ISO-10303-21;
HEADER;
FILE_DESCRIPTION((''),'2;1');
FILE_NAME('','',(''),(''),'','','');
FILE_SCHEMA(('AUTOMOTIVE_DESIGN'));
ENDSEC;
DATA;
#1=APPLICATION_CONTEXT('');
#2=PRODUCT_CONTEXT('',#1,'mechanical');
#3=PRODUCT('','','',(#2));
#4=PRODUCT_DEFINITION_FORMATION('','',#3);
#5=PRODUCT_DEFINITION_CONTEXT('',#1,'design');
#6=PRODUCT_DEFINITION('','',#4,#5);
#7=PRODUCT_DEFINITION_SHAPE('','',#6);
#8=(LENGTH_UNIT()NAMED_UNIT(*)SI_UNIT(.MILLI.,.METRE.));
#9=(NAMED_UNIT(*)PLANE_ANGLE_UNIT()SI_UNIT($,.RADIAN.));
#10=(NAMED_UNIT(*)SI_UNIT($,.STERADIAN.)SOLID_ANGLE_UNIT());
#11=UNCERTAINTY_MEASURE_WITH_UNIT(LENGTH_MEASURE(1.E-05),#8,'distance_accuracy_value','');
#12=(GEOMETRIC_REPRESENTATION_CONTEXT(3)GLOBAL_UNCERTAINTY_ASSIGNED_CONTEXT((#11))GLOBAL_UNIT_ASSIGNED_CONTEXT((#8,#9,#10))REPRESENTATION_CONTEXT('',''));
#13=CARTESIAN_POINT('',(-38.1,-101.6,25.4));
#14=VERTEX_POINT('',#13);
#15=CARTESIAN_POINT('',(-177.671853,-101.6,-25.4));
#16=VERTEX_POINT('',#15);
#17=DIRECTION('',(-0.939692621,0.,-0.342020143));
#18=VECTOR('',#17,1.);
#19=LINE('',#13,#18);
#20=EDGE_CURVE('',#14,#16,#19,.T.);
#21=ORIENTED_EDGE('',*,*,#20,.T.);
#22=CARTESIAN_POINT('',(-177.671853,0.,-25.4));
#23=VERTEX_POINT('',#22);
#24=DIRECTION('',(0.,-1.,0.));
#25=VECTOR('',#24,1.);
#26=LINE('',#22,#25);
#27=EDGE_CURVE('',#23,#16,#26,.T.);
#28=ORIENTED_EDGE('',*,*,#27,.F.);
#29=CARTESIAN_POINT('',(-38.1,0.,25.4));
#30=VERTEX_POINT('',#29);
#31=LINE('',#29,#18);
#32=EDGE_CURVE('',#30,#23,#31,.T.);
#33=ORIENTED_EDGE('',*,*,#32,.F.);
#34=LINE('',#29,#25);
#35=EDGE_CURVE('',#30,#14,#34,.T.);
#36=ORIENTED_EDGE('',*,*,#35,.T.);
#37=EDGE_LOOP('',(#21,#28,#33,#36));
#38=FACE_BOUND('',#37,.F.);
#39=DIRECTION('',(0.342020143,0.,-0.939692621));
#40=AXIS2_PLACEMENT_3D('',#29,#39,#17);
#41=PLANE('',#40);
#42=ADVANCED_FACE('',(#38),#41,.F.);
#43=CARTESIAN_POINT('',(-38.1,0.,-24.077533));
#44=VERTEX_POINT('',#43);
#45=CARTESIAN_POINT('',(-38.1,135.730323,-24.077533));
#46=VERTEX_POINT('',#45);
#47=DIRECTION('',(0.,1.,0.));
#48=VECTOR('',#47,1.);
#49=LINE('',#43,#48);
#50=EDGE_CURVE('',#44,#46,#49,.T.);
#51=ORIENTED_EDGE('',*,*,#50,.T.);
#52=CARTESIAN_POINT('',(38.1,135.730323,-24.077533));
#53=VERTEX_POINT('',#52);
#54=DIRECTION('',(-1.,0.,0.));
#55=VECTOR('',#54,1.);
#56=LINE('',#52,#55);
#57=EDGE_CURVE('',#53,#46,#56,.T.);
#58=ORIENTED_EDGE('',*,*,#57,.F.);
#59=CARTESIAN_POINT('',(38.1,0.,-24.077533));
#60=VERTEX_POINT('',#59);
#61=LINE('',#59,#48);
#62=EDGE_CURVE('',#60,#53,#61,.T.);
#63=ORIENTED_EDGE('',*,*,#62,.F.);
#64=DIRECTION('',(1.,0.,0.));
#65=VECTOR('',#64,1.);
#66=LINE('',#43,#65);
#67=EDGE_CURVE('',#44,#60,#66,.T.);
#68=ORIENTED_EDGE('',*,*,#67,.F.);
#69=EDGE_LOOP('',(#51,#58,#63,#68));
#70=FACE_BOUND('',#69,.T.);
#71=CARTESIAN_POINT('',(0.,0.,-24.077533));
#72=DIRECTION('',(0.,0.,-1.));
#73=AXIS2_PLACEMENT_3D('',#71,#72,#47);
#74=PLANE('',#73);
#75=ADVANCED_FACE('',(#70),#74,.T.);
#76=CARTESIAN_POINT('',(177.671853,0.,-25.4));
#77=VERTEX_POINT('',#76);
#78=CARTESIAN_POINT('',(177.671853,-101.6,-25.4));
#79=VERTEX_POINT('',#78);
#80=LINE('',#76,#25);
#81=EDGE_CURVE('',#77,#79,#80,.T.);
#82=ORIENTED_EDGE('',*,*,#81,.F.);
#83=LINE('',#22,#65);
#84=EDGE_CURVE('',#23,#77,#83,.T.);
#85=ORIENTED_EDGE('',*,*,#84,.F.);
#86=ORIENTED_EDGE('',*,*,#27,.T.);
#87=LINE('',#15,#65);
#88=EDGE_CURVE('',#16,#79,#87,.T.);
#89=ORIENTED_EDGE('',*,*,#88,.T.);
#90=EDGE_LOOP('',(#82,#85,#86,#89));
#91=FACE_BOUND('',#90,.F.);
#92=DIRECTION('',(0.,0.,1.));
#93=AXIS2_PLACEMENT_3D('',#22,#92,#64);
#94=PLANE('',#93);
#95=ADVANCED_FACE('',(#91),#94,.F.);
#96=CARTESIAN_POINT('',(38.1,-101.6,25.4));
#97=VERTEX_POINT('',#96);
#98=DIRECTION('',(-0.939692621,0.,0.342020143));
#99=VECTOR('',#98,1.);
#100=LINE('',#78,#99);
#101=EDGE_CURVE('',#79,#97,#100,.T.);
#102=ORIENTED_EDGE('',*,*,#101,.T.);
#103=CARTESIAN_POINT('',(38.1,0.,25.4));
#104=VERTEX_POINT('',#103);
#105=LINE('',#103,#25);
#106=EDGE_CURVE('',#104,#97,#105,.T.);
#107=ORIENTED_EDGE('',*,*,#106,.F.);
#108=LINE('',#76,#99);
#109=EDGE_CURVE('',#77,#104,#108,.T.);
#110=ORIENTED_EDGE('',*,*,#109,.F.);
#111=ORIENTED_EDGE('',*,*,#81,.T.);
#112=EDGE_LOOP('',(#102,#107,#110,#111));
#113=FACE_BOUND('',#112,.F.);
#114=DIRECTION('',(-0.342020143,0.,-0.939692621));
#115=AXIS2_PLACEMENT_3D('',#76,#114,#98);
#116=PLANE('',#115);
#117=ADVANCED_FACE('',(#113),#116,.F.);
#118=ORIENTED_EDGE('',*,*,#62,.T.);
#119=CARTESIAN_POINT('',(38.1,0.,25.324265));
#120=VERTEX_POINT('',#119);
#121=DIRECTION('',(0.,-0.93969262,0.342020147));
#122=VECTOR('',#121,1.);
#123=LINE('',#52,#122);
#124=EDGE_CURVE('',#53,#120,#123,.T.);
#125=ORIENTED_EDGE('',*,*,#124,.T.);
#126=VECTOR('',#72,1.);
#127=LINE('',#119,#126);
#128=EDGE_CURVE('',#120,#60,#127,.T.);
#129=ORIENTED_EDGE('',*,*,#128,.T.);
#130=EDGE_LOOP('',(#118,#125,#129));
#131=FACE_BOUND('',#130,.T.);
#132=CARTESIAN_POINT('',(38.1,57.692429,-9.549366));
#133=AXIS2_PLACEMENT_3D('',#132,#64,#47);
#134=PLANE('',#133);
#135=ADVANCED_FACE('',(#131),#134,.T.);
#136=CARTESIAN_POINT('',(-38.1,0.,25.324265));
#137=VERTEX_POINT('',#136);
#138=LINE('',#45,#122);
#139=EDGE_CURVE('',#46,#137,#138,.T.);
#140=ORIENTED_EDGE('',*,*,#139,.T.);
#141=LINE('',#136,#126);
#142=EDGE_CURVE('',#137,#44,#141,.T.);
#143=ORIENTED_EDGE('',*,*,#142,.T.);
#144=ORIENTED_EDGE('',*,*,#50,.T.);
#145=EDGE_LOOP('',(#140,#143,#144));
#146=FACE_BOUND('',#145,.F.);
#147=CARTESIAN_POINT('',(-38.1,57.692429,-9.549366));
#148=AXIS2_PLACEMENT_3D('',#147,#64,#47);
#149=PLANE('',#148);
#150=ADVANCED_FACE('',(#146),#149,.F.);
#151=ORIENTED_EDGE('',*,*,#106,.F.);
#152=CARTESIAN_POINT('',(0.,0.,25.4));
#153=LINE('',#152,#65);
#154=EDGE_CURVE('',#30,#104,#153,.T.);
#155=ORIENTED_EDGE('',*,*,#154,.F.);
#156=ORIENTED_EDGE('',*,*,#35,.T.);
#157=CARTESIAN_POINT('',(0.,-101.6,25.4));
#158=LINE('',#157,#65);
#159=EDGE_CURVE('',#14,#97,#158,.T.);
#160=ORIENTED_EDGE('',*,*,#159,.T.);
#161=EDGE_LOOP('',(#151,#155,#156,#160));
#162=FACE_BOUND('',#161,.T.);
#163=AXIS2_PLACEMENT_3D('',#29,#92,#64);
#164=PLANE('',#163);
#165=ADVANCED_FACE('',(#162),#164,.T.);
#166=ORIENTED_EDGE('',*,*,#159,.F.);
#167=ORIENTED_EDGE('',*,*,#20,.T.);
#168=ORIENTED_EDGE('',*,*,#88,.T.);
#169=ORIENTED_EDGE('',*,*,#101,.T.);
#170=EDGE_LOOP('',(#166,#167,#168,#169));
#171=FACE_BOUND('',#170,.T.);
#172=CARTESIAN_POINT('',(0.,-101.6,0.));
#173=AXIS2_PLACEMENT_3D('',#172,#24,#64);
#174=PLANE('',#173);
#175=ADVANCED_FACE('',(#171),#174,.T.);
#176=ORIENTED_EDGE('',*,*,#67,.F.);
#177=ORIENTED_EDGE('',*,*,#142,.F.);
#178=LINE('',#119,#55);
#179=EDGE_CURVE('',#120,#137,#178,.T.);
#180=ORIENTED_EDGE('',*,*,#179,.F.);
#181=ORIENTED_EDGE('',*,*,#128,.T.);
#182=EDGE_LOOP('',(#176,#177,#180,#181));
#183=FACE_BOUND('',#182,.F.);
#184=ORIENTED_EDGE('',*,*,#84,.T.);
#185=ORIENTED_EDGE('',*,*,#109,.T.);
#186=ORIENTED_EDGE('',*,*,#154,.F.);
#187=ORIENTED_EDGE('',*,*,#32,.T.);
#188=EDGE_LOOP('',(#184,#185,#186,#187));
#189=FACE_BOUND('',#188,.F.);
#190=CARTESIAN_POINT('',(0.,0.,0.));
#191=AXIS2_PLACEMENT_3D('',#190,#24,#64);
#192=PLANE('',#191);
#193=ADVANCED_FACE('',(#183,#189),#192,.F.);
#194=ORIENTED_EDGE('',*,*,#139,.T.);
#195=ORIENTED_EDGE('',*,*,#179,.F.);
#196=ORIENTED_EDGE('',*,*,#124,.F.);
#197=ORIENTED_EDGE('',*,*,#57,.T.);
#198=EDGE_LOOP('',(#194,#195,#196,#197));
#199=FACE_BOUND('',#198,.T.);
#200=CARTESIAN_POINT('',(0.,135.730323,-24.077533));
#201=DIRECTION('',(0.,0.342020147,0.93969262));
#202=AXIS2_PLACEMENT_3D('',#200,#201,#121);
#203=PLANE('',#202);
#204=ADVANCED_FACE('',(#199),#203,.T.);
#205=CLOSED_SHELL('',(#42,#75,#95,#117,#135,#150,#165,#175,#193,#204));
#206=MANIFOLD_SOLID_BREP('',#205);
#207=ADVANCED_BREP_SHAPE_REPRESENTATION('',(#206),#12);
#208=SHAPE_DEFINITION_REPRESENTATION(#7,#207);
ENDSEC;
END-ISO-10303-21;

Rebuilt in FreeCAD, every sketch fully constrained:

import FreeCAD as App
import Part
import Sketcher
from FreeCAD import Vector
Q = App.Units.Quantity


def add_polygon(sketch, points):
    """Adds a closed chain of lines whose ends are joined by coincident constraints."""
    first, n = sketch.GeometryCount, len(points)
    for a, b in zip(points, points[1:] + points[:1]):
        sketch.addGeometry(Part.LineSegment(App.Vector(*a, 0), App.Vector(*b, 0)), False)
    for i in range(n):
        sketch.addConstraint(Sketcher.Constraint("Coincident", first + i, 2, first + (i + 1) % n, 1))

doc = App.newDocument("Part")
body = doc.addObject("PartDesign::Body", "Body")

sketch1 = body.newObject("Sketcher::SketchObject", "Sketch")
sketch1.AttachmentSupport = (doc.getObject("XZ_Plane"), [""])
sketch1.MapMode = "FlatFace"
add_polygon(sketch1, [(38, 25), (-38, 25), (-178, -25), (178, -25)])
sketch1.addConstraint([
    Sketcher.Constraint("Horizontal", 0),
    Sketcher.Constraint("Horizontal", 2),
    Sketcher.Constraint("Equal", 1, 3),
    Sketcher.Constraint("DistanceX", 0, 2, 0, 1, Q("3 in")),
    Sketcher.Constraint("DistanceY", -1, 1, 0, 2, Q("1 in")),
    Sketcher.Constraint("DistanceY", 1, 2, -1, 1, Q("1 in")),
    Sketcher.Constraint("Angle", 1, Q("-160 deg")),
    Sketcher.Constraint("DistanceX", 0, 2, -1, 1, Q("1.5 in")),
])
pad1 = body.newObject("PartDesign::Pad", "Pad")
pad1.Profile = sketch1
pad1.Length = Q("4 in")

sketch2 = body.newObject("Sketcher::SketchObject", "Sketch001")
sketch2.AttachmentSupport = (doc.getObject("YZ_Plane"), [""])
sketch2.MapMode = "FlatFace"
add_polygon(sketch2, [(0, 25), (0, -24), (136, -24)])
sketch2.addConstraint([
    Sketcher.Constraint("Vertical", 0),
    Sketcher.Constraint("Horizontal", 1),
    Sketcher.Constraint("PointOnObject", 0, 2, -2),
    Sketcher.Constraint("Angle", 2, Q("160 deg")),
    Sketcher.Constraint("DistanceX", 1, 1, 1, 2, Q("135.730323 mm")),
    Sketcher.Constraint("DistanceY", 0, 2, -1, 1, Q("24.077533 mm")),
])
pad2 = body.newObject("PartDesign::Pad", "Pad001")
pad2.Profile = sketch2
pad2.Length = Q("3 in")
pad2.Midplane = True

doc.recompute()
